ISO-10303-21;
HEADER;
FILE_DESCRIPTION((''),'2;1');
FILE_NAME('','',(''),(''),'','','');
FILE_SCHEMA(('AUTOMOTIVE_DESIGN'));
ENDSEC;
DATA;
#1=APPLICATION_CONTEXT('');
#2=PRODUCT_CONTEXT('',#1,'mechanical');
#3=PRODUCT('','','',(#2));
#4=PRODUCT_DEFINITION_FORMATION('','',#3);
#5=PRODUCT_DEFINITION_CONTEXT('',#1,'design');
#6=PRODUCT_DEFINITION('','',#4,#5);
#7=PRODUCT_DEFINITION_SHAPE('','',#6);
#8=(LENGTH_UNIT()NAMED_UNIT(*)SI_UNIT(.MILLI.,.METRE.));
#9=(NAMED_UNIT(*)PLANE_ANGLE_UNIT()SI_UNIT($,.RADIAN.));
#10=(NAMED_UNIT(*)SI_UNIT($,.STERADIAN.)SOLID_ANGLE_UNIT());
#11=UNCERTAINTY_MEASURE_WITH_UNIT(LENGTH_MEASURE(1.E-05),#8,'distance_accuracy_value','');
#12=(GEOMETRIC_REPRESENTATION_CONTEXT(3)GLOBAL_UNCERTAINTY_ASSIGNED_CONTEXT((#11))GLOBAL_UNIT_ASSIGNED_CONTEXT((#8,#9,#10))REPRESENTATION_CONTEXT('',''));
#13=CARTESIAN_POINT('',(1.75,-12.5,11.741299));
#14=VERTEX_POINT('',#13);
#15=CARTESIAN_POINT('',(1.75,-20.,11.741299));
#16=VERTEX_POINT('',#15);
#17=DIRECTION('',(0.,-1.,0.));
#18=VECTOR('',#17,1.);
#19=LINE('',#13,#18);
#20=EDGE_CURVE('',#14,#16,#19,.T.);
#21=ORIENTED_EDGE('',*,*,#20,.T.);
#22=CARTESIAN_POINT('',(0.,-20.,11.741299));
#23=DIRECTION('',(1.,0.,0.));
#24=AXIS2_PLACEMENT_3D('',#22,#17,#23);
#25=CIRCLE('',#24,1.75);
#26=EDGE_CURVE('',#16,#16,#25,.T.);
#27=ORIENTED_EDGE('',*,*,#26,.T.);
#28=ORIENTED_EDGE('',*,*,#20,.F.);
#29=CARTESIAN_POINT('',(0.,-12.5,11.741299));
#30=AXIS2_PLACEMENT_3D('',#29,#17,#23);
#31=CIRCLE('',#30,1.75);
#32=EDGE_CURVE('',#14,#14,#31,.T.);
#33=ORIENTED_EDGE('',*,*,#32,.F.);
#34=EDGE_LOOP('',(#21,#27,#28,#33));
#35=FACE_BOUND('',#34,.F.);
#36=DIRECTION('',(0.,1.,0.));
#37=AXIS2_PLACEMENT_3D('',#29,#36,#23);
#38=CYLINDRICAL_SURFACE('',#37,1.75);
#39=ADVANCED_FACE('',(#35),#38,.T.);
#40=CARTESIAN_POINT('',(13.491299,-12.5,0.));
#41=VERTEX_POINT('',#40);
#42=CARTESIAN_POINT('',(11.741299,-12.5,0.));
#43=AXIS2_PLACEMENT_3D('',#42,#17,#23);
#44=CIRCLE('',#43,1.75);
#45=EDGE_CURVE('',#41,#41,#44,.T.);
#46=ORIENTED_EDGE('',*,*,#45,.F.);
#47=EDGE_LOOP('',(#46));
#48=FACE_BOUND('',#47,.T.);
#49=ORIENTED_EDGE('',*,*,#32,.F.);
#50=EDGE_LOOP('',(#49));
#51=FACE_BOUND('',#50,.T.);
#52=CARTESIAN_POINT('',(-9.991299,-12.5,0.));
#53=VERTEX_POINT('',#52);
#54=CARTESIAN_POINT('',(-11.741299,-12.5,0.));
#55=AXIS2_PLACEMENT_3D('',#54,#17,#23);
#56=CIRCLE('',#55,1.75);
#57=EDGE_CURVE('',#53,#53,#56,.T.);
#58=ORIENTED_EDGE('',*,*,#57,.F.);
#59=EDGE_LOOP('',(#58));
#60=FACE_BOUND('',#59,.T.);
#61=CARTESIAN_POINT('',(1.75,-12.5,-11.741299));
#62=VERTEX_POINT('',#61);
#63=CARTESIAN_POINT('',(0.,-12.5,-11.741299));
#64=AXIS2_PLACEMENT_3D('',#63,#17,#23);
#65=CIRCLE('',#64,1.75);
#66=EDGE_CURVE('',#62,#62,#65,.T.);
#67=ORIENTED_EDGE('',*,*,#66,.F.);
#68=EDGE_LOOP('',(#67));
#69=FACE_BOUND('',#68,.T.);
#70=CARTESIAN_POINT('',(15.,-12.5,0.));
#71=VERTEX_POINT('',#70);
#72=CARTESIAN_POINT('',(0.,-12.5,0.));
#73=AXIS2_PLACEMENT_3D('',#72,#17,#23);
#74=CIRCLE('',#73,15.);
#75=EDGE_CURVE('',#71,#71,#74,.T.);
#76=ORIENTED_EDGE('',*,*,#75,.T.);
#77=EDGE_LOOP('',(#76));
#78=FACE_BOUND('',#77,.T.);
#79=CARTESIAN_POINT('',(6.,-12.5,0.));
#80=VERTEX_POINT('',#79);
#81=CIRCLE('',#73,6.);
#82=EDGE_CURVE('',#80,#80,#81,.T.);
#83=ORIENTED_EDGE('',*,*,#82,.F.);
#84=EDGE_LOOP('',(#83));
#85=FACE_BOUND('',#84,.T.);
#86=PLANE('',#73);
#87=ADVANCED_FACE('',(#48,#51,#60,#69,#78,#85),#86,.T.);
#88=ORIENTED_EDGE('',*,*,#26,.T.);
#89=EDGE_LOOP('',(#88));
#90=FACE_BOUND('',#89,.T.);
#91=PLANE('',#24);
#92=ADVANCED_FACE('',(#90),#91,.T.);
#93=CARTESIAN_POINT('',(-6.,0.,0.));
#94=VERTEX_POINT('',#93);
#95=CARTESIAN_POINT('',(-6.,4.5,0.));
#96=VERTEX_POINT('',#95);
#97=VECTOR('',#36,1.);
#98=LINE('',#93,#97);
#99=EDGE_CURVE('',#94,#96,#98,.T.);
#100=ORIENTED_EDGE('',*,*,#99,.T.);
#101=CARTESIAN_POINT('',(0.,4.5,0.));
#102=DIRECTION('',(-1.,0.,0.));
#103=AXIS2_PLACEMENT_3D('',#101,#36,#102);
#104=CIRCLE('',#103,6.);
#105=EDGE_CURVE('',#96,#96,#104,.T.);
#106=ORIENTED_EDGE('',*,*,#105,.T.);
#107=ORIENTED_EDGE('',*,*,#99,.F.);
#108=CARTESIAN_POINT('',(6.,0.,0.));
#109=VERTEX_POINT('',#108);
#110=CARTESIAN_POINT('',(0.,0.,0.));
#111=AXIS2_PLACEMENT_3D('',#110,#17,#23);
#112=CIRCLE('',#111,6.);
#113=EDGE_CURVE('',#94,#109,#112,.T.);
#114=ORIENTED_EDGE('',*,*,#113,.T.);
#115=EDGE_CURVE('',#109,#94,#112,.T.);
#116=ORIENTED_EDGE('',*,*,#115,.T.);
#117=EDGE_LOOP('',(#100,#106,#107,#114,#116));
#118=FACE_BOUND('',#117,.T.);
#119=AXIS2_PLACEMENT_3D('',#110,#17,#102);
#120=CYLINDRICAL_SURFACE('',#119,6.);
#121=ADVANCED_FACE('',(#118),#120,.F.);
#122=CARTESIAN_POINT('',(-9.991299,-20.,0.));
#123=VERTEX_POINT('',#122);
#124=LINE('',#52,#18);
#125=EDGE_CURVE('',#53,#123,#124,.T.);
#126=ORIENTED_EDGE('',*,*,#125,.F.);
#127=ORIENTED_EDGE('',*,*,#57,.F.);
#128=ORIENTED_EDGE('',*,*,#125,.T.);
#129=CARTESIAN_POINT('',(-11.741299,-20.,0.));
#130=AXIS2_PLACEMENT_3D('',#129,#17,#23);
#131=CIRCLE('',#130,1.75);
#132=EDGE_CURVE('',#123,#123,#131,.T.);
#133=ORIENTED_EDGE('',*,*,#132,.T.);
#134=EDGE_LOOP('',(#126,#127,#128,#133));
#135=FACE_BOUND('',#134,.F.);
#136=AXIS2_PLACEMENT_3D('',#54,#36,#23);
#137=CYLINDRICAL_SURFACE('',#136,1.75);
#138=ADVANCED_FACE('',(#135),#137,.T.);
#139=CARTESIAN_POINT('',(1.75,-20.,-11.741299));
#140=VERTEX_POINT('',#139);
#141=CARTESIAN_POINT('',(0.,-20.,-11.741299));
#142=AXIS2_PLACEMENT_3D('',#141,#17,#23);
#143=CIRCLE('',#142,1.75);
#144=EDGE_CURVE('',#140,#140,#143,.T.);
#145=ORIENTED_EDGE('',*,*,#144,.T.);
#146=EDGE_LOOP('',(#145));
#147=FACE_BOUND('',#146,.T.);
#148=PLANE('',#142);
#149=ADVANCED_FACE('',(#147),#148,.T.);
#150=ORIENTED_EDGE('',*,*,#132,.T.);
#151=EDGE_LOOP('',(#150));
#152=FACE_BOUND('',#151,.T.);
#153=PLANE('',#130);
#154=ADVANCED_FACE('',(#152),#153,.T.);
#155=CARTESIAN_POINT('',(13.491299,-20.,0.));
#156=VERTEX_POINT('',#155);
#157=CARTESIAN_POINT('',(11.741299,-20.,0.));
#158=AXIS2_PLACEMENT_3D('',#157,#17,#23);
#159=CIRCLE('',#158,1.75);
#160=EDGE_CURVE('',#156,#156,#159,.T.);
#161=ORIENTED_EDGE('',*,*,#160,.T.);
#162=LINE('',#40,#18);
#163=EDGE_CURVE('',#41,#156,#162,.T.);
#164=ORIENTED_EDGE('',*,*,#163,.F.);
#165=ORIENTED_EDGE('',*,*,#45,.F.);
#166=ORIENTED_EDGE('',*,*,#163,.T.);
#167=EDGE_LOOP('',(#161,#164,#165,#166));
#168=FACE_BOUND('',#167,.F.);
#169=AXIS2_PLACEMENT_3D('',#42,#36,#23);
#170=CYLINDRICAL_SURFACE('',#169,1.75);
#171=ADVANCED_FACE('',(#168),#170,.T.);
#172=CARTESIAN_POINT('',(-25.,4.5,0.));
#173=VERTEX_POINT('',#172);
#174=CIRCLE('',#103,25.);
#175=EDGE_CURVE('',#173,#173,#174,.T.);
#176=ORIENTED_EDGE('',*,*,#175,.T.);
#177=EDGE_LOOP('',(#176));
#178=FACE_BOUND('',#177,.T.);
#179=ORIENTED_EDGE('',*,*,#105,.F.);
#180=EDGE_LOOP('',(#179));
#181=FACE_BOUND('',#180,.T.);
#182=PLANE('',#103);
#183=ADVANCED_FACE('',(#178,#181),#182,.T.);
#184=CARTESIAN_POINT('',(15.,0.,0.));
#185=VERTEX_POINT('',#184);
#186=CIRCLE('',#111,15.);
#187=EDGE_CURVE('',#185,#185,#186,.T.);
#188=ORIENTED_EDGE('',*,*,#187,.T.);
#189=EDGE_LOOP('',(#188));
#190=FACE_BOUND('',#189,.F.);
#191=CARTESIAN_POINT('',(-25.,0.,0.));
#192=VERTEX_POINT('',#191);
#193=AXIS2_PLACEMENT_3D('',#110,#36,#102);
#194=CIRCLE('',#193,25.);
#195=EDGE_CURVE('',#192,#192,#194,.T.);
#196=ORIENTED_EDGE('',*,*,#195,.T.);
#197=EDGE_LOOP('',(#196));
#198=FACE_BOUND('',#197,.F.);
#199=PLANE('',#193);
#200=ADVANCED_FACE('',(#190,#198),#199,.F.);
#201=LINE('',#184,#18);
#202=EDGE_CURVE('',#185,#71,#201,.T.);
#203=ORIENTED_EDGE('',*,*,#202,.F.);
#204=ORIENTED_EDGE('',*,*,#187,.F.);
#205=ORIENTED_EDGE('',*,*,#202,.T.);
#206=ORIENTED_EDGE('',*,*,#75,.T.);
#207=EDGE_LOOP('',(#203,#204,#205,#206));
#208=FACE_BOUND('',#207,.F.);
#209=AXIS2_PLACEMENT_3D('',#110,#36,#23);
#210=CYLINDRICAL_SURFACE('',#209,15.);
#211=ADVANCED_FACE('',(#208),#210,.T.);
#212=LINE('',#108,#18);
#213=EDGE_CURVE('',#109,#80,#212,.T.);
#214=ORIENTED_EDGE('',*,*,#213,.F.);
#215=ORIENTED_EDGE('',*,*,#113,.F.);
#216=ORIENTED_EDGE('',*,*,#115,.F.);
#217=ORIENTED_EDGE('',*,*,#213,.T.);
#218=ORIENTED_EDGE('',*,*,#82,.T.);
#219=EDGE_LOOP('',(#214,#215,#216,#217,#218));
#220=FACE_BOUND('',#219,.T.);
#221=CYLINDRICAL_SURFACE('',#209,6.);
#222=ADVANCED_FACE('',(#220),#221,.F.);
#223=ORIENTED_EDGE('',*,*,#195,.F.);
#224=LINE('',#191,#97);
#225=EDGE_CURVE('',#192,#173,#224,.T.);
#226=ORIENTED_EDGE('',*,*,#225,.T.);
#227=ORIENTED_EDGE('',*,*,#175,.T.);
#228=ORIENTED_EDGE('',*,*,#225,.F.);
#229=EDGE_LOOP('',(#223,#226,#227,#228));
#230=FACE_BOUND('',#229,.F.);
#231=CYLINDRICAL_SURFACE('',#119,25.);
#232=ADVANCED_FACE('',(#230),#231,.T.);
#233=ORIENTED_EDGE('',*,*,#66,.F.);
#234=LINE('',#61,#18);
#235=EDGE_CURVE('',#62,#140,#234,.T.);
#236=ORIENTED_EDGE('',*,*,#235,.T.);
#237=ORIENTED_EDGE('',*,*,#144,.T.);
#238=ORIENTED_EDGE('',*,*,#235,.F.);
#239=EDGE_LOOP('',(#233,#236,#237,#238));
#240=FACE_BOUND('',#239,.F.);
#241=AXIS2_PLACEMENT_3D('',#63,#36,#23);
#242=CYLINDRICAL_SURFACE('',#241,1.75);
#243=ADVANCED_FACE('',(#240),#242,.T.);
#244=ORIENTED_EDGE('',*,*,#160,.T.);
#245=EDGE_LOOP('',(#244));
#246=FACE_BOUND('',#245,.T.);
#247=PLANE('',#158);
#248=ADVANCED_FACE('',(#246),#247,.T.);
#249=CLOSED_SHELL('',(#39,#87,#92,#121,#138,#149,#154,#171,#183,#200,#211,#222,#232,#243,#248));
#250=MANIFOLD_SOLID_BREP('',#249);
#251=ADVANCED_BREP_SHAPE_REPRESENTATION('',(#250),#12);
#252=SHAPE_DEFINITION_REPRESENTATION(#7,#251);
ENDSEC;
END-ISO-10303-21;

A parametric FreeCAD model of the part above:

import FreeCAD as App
import Part
import Sketcher

V = App.Vector
Q = App.Units.Quantity

doc = App.newDocument("Part")
body = doc.addObject("PartDesign::Body", "Body")

sketch1 = body.newObject("Sketcher::SketchObject", "Sketch")
sketch1.AttachmentSupport = (doc.getObject("XZ_Plane"), [""])
sketch1.MapMode = "FlatFace"
sketch1.addGeometry([
    Part.Circle(V(0, 0, 0), V(0, 0, 1), 15),
    Part.Circle(V(0, 0, 0), V(0, 0, 1), 6),
], False)
sketch1.addConstraint([
    Sketcher.Constraint("Coincident", 0, 3, -1, 1),
    Sketcher.Constraint("Coincident", 1, 3, -1, 1),
    Sketcher.Constraint("Diameter", 0, Q("30 mm")),
    Sketcher.Constraint("Diameter", 1, Q("12 mm")),
])
pad1 = body.newObject("PartDesign::Pad", "Pad")
pad1.Profile = sketch1
pad1.Length = 12.5

sketch2 = body.newObject("Sketcher::SketchObject", "Sketch001")
sketch2.AttachmentSupport = (doc.getObject("XZ_Plane"), [""])
sketch2.MapMode = "FlatFace"
sketch2.addGeometry([
    Part.Circle(V(0, 0, 0), V(0, 0, 1), 25),
    Part.Circle(V(0, 0, 0), V(0, 0, 1), 6),
], False)
sketch2.addConstraint([
    Sketcher.Constraint("Coincident", 0, 3, -1, 1),
    Sketcher.Constraint("Coincident", 1, 3, -1, 1),
    Sketcher.Constraint("Diameter", 0, Q("50 mm")),
    Sketcher.Constraint("Diameter", 1, Q("12 mm")),
])
pad2 = body.newObject("PartDesign::Pad", "Pad001")
pad2.Profile = sketch2
pad2.Length = 4.5
pad2.Reversed = True

sketch3 = body.newObject("Sketcher::SketchObject", "Sketch002")
sketch3.AttachmentSupport = (doc.getObject("XZ_Plane"), [""])
sketch3.MapMode = "FlatFace"
sketch3.AttachmentOffset = App.Placement(V(0, 0, 12.5), App.Rotation())
sketch3.addGeometry([
    Part.Circle(V(0, 11.7, 0), V(0, 0, 1), 1.8),
    Part.Circle(V(-11.7, 0, 0), V(0, 0, 1), 1.8),
    Part.Circle(V(11.7, 0, 0), V(0, 0, 1), 1.8),
    Part.Circle(V(0, -11.7, 0), V(0, 0, 1), 1.8),
], False)
sketch3.addConstraint([
    Sketcher.Constraint("Equal", 0, 1),
    Sketcher.Constraint("Equal", 1, 2),
    Sketcher.Constraint("Equal", 2, 3),
    Sketcher.Constraint("Symmetric", 1, 3, 2, 3, -1, 1),
    Sketcher.Constraint("Symmetric", 0, 3, 3, 3, -1, 1),
    Sketcher.Constraint("PointOnObject", 0, 3, -2),
    Sketcher.Constraint("PointOnObject", 1, 3, -1),
    Sketcher.Constraint("Diameter", 0, Q("3.5 mm")),
    Sketcher.Constraint("DistanceY", -1, 1, 0, 3, Q("11.741299 mm")),
    Sketcher.Constraint("DistanceX", 1, 3, -1, 1, Q("11.741299 mm")),
])
pad3 = body.newObject("PartDesign::Pad", "Pad002")
pad3.Profile = sketch3
pad3.Length = 7.5

doc.recompute()
